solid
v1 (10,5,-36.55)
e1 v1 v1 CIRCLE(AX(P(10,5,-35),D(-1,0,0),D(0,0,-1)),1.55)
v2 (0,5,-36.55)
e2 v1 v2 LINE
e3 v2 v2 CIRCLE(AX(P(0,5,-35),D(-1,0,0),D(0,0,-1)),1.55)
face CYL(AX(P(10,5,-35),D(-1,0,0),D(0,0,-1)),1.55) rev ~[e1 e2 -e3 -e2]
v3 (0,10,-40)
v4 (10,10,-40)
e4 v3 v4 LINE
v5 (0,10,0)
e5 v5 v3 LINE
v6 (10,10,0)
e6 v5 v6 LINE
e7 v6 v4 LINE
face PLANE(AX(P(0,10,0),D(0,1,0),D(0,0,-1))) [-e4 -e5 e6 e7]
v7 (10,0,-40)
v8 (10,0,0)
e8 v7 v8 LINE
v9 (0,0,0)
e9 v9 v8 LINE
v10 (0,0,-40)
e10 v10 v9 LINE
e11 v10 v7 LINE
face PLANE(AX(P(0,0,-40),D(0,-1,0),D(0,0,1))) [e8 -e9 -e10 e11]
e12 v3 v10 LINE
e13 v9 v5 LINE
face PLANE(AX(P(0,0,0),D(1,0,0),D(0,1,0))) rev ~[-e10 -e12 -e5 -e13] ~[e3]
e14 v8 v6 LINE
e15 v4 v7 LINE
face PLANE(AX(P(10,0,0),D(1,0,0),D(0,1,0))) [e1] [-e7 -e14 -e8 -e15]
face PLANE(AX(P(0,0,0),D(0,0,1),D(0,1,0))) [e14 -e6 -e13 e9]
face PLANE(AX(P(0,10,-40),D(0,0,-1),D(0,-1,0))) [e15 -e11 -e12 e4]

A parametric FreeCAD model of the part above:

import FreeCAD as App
import Part
import Sketcher


def add_polygon(sketch, points):
    """Adds a closed chain of lines whose ends are joined by coincident constraints."""
    first, n = sketch.GeometryCount, len(points)
    for a, b in zip(points, points[1:] + points[:1]):
        sketch.addGeometry(Part.LineSegment(App.Vector(*a, 0), App.Vector(*b, 0)), False)
    for i in range(n):
        sketch.addConstraint(Sketcher.Constraint("Coincident", first + i, 2, first + (i + 1) % n, 1))

doc = App.newDocument("Part")
params = doc.addObject("Spreadsheet::Sheet", "Params")
for row, (alias, value) in enumerate([
    ("sketch1_width", "10 mm"),
    ("sketch1_height", "40 mm"),
    ("pad1_length", "10 mm"),
    ("sketch2_diameter", "3.1 mm"),
    ("hole_diameter", "3.1 mm"),
], start=1):
    params.set(f"A{row}", alias)
    params.set(f"B{row}", "=" + value)
    params.setAlias(f"B{row}", alias)

body = doc.addObject("PartDesign::Body", "Body")

# Sketch on YZ plane
sketch1 = body.newObject("Sketcher::SketchObject", "Sketch")
sketch1.AttachmentSupport = (doc.getObject("YZ_Plane"), [""])
sketch1.MapMode = "FlatFace"
add_polygon(sketch1, [(10, 0), (0, 0), (0, -40), (10, -40)])  # lines 0-3
sketch1.addConstraint([
    Sketcher.Constraint("Horizontal", 0),
    Sketcher.Constraint("Vertical", 1),
    Sketcher.Constraint("Horizontal", 2),
    Sketcher.Constraint("Vertical", 3),
    Sketcher.Constraint("Coincident", 0, 2, -1, 1),
    Sketcher.Constraint("DistanceX", 0, 2, 0, 1, 10.0),
    Sketcher.Constraint("DistanceY", 1, 2, 1, 1, 40.0),
])
sketch1.setExpression("Constraints[9]", "Params.sketch1_width")
sketch1.setExpression("Constraints[10]", "Params.sketch1_height")
pad1 = body.newObject("PartDesign::Pad", "Pad")
pad1.Profile = sketch1
pad1.setExpression("Length", "Params.pad1_length")

# Sketch on YZ plane
sketch2 = body.newObject("Sketcher::SketchObject", "Sketch001")
sketch2.AttachmentSupport = (doc.getObject("YZ_Plane"), [""])
sketch2.MapMode = "FlatFace"
sketch2.AttachmentOffset = App.Placement(App.Vector(0, 0, 10), App.Rotation())
sketch2.addGeometry(Part.Circle(App.Vector(5, -35, 0), App.Vector(0, 0, 1), 1.6), False)
sketch2.addConstraint([
    Sketcher.Constraint("Diameter", 0, 3.1),
    Sketcher.Constraint("DistanceX", -1, 1, 0, 3, 5.0),
    Sketcher.Constraint("DistanceY", 0, 3, -1, 1, 35.0),
])
sketch2.setExpression("Constraints[0]", "Params.sketch2_diameter")
doc.recompute()
hole = body.newObject("PartDesign::Hole", "Hole")
hole.Profile = sketch2
hole.ThreadType = "None"
hole.setExpression("Diameter", "Params.hole_diameter")
hole.DepthType = "ThroughAll"

doc.recompute()
